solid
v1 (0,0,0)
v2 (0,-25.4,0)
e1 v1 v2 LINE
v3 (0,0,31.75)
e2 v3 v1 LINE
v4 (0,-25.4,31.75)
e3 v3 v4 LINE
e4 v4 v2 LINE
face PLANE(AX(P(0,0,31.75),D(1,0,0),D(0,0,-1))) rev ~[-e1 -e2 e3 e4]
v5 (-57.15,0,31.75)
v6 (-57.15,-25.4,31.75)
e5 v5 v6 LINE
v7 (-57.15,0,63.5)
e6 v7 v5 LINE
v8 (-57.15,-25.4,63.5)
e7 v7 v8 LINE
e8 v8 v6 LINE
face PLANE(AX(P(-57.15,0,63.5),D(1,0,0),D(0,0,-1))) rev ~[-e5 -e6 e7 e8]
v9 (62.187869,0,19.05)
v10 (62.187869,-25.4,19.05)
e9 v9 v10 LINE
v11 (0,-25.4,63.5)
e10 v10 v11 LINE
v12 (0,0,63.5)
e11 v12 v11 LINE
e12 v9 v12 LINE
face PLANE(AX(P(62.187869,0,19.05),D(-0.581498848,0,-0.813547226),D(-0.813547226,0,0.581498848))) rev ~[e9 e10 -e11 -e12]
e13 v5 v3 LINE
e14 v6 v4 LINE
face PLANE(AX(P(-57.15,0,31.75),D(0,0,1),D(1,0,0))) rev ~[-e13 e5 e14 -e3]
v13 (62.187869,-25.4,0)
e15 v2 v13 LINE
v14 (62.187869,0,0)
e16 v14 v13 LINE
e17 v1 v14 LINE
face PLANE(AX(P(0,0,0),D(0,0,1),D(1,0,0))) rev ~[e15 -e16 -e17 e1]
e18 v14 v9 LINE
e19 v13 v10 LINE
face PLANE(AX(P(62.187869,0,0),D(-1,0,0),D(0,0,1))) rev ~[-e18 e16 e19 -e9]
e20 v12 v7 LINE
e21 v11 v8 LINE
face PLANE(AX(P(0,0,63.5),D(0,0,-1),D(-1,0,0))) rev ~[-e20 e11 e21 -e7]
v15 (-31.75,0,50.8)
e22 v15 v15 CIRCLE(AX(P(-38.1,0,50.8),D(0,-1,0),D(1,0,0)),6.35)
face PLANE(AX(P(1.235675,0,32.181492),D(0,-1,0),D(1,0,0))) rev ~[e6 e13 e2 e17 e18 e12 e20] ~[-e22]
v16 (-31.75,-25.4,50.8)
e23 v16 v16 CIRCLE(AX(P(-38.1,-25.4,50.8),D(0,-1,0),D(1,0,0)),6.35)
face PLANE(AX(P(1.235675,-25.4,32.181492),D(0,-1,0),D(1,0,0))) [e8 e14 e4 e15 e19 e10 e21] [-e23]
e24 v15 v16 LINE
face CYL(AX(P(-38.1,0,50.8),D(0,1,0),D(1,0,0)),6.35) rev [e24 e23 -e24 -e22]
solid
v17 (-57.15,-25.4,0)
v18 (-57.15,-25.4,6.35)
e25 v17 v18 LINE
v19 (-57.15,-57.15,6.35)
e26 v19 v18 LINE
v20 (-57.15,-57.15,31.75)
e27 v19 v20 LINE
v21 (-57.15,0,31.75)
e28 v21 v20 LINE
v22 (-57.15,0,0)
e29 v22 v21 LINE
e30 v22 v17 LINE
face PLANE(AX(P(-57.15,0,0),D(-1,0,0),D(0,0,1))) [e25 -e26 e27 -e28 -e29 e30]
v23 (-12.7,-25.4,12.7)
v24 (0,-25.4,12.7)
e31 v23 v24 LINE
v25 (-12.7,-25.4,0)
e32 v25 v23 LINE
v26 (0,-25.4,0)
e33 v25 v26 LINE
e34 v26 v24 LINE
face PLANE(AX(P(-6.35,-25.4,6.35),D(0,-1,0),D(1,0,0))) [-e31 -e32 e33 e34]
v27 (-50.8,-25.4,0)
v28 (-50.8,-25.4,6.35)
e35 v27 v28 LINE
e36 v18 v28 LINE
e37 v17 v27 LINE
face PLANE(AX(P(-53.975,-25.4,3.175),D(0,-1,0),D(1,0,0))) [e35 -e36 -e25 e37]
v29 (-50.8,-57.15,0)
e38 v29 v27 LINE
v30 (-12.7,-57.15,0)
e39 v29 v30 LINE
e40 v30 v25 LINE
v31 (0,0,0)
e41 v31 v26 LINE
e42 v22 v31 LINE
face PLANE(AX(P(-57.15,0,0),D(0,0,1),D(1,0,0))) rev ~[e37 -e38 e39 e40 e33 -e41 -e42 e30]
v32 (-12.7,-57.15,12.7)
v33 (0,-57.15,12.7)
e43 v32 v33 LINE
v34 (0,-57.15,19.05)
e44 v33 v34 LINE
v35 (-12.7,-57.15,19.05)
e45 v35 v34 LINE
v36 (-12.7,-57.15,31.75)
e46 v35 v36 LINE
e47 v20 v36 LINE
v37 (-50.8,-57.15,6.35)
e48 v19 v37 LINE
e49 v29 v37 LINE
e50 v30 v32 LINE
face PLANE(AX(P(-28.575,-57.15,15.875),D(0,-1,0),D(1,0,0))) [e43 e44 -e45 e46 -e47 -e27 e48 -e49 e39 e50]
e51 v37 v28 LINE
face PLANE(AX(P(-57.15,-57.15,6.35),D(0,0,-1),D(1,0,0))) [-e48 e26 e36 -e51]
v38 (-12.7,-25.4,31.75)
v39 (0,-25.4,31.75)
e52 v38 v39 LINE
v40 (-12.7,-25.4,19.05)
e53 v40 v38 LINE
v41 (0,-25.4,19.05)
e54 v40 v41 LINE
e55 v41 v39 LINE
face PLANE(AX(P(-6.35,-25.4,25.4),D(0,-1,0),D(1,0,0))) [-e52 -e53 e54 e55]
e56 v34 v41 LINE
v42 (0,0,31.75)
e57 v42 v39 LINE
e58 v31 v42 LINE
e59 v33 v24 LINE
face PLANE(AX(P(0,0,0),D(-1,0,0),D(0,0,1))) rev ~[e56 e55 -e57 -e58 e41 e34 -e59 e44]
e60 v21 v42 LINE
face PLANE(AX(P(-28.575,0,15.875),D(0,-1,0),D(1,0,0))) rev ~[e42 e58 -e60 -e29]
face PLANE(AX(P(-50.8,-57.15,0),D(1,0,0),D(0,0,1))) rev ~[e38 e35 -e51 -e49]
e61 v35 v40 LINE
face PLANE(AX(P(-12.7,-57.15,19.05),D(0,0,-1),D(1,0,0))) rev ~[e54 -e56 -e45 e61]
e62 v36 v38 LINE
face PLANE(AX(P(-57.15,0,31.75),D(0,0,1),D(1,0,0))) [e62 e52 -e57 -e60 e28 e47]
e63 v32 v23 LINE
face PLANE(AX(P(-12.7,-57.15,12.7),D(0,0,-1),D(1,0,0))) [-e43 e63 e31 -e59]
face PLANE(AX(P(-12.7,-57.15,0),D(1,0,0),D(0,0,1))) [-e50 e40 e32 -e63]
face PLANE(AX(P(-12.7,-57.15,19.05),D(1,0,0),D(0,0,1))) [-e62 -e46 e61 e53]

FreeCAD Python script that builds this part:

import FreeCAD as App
import Part
import Sketcher
Q = App.Units.Quantity


def add_polygon(sketch, points):
    """Adds a closed chain of lines whose ends are joined by coincident constraints."""
    first, n = sketch.GeometryCount, len(points)
    for a, b in zip(points, points[1:] + points[:1]):
        sketch.addGeometry(Part.LineSegment(App.Vector(*a, 0), App.Vector(*b, 0)), False)
    for i in range(n):
        sketch.addConstraint(Sketcher.Constraint("Coincident", first + i, 2, first + (i + 1) % n, 1))

doc = App.newDocument("Part")
params = doc.addObject("Spreadsheet::Sheet", "Params")
for row, (alias, value) in enumerate([
    ("sketch1_diameter", "0.5 in"),
    ("sketch1_width", "2.25 in"),
    ("sketch1_height", "1.25 in"),
    ("sketch1_height2", "0.75 in"),
    ("pad1_length", "1 in"),
    ("sketch2_width", "2.25 in"),
    ("sketch2_height", "1.25 in"),
    ("pad2_length", "2.25 in"),
    ("sketch3_width", "0.5 in"),
    ("sketch3_width2", "0.25 in"),
    ("pocket1_length", "1.25 in"),
], start=1):
    params.set(f"A{row}", alias)
    params.set(f"B{row}", "=" + value)
    params.setAlias(f"B{row}", alias)

body = doc.addObject("PartDesign::Body", "Body")

sketch1 = body.newObject("Sketcher::SketchObject", "Sketch")
sketch1.AttachmentSupport = (doc.getObject("XZ_Plane"), [""])
sketch1.MapMode = "FlatFace"
add_polygon(sketch1, [(-57, 64), (-57, 32), (0, 32), (0, 0), (62, 0), (62, 19), (0, 64)])
sketch1.addGeometry(Part.Circle(App.Vector(-38, 51, 0), App.Vector(0, 0, 1), 6), False)
sketch1.addConstraint([
    Sketcher.Constraint("Vertical", 0),
    Sketcher.Constraint("Horizontal", 1),
    Sketcher.Constraint("Vertical", 2),
    Sketcher.Constraint("Horizontal", 3),
    Sketcher.Constraint("Vertical", 4),
    Sketcher.Constraint("Horizontal", 6),
    Sketcher.Constraint("Coincident", 2, 2, -1, 1),
    Sketcher.Constraint("PointOnObject", 5, 2, -2),
    Sketcher.Constraint("Equal", 0, 2),
    Sketcher.Constraint("Diameter", 7, Q("0.5 in")),
    Sketcher.Constraint("DistanceY", -1, 1, 7, 3, Q("2 in")),
    Sketcher.Constraint("DistanceX", 1, 1, 1, 2, Q("2.25 in")),
    Sketcher.Constraint("DistanceY", 0, 2, 0, 1, Q("1.25 in")),
    Sketcher.Constraint("DistanceY", 4, 1, 4, 2, Q("0.75 in")),
    Sketcher.Constraint("DistanceX", 7, 3, -1, 1, Q("1.5 in")),
    Sketcher.Constraint("DistanceX", 3, 1, 3, 2, 62.187869),
])
sketch1.setExpression("Constraints[16]", "Params.sketch1_diameter")
sketch1.setExpression("Constraints[18]", "Params.sketch1_width")
sketch1.setExpression("Constraints[19]", "Params.sketch1_height")
sketch1.setExpression("Constraints[20]", "Params.sketch1_height2")
pad1 = body.newObject("PartDesign::Pad", "Pad")
pad1.Profile = sketch1
pad1.setExpression("Length", "Params.pad1_length")
body2 = doc.addObject("PartDesign::Body", "Body001")

sketch2 = body2.newObject("Sketcher::SketchObject", "Sketch001")
sketch2.AttachmentSupport = (doc.getObject("XZ_Plane001"), [""])
sketch2.MapMode = "FlatFace"
add_polygon(sketch2, [(-57, 32), (-57, 0), (0, 0), (0, 32)])
sketch2.addConstraint([
    Sketcher.Constraint("Vertical", 0),
    Sketcher.Constraint("Horizontal", 1),
    Sketcher.Constraint("Vertical", 2),
    Sketcher.Constraint("Horizontal", 3),
    Sketcher.Constraint("Coincident", 1, 2, -1, 1),
    Sketcher.Constraint("DistanceX", 1, 1, 1, 2, Q("2.25 in")),
    Sketcher.Constraint("DistanceY", 0, 2, 0, 1, Q("1.25 in")),
])
sketch2.setExpression("Constraints[9]", "Params.sketch2_width")
sketch2.setExpression("Constraints[10]", "Params.sketch2_height")
pad2 = body2.newObject("PartDesign::Pad", "Pad001")
pad2.Profile = sketch2
pad2.setExpression("Length", "Params.pad2_length")

sketch3 = body2.newObject("Sketcher::SketchObject", "Sketch002")
sketch3.AttachmentSupport = (doc.getObject("XZ_Plane001"), [""])
sketch3.MapMode = "FlatFace"
sketch3.AttachmentOffset = App.Placement(App.Vector(0, 0, 2.25 * 25.4), App.Rotation())
add_polygon(sketch3, [(-57, 6), (-57, 0), (-51, 0), (-51, 6)])
add_polygon(sketch3, [(-13, 32), (-13, 19), (0, 19), (0, 32)])
add_polygon(sketch3, [(-13, 13), (-13, 0), (0, 0), (0, 13)])
sketch3.addConstraint([
    Sketcher.Constraint("Vertical", 0),
    Sketcher.Constraint("Horizontal", 1),
    Sketcher.Constraint("Vertical", 2),
    Sketcher.Constraint("Horizontal", 3),
    Sketcher.Constraint("Vertical", 4),
    Sketcher.Constraint("Horizontal", 5),
    Sketcher.Constraint("Vertical", 6),
    Sketcher.Constraint("Horizontal", 7),
    Sketcher.Constraint("Vertical", 8),
    Sketcher.Constraint("Horizontal", 9),
    Sketcher.Constraint("Vertical", 10),
    Sketcher.Constraint("Horizontal", 11),
    Sketcher.Constraint("Coincident", 9, 2, -1, 1),
    Sketcher.Constraint("PointOnObject", 0, 2, -1),
    Sketcher.Constraint("PointOnObject", 5, 2, -2),
    Sketcher.Constraint("Vertical", 7, 2, 8, 2),
    Sketcher.Constraint("Equal", 3, 0),
    Sketcher.Constraint("Equal", 11, 4),
    Sketcher.Constraint("Equal", 6, 8),
    Sketcher.Constraint("DistanceX", 5, 1, 5, 2, Q("0.5 in")),
    Sketcher.Constraint("DistanceX", 1, 2, -1, 1, Q("2 in")),
    Sketcher.Constraint("DistanceY", 2, 2, 6, 2, Q("1 in")),
    Sketcher.Constraint("DistanceX", 1, 1, 1, 2, Q("0.25 in")),
])
sketch3.setExpression("Constraints[31]", "Params.sketch3_width")
sketch3.setExpression("Constraints[34]", "Params.sketch3_width2")
pocket1 = body2.newObject("PartDesign::Pocket", "Pocket")
pocket1.Profile = sketch3
pocket1.setExpression("Length", "Params.pocket1_length")

doc.recompute()
